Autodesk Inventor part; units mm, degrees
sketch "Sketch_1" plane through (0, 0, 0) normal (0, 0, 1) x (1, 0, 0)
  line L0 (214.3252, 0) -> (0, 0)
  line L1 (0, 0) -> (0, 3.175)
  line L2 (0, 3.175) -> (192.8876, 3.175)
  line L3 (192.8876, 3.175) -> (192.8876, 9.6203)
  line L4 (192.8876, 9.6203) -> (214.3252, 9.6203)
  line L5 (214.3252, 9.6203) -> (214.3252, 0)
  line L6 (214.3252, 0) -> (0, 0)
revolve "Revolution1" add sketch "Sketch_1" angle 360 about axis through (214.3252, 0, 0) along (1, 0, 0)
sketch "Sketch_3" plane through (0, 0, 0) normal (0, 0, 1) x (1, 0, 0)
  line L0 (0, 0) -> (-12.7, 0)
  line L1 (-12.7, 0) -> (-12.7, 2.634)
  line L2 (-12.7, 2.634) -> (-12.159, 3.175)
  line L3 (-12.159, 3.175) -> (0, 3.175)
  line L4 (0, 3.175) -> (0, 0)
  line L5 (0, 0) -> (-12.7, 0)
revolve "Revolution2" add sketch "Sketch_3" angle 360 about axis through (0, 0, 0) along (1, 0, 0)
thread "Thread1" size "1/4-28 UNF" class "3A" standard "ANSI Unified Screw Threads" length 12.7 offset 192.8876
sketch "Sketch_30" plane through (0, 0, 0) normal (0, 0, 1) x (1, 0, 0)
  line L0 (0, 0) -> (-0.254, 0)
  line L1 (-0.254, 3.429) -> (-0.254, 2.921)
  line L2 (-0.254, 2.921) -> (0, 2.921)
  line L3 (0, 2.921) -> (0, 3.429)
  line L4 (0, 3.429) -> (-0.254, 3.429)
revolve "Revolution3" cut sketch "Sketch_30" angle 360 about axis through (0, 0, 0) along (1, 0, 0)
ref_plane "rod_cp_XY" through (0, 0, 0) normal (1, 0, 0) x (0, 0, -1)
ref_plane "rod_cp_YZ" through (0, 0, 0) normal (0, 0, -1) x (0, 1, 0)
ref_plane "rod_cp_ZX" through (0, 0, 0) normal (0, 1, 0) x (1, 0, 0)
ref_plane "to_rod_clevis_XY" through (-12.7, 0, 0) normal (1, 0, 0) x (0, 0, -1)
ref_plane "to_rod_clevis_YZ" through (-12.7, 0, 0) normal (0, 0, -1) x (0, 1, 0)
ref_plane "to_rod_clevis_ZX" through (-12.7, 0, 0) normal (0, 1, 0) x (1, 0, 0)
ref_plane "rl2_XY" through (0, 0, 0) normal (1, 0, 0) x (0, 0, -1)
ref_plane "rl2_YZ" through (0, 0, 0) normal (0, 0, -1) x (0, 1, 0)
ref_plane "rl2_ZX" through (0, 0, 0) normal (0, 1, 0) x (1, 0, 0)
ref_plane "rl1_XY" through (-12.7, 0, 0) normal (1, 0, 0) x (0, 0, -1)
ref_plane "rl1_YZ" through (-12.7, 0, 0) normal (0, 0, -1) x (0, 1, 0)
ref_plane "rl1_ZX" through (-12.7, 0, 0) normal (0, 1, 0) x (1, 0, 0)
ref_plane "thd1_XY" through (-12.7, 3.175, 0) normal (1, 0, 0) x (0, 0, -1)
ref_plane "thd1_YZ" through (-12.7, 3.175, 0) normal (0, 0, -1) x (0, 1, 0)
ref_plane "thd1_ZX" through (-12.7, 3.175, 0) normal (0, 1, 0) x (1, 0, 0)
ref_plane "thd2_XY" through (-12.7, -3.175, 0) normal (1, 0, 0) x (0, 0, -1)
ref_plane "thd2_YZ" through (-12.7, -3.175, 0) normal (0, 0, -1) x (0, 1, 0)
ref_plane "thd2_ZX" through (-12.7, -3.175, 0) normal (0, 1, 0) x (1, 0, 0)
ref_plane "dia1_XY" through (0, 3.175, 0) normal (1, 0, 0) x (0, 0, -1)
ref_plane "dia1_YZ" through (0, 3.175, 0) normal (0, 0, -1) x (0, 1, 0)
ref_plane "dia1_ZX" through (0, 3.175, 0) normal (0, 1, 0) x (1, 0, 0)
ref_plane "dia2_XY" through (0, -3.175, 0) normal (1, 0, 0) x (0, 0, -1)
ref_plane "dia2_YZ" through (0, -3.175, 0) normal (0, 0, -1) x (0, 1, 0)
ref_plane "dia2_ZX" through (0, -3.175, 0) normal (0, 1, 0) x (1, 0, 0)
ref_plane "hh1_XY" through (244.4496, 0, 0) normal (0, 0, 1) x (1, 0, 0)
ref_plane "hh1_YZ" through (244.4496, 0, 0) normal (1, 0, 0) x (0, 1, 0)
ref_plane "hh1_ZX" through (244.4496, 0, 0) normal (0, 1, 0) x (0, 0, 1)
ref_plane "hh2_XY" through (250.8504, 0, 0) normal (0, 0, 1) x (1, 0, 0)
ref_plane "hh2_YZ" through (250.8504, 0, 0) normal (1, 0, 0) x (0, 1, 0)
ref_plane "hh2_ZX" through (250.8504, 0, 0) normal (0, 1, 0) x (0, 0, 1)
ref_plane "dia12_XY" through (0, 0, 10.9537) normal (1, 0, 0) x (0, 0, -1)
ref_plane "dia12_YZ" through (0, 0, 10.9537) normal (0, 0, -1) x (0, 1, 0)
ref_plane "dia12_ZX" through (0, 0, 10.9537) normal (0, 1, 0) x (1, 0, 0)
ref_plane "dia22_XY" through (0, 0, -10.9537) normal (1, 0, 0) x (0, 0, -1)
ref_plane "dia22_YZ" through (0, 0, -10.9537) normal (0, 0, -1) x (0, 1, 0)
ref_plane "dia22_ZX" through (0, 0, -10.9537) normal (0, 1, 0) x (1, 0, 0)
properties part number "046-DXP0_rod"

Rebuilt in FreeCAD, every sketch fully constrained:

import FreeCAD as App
import Part
import Sketcher

V = App.Vector
Q = App.Units.Quantity

doc = App.newDocument("Part")
body = doc.addObject("PartDesign::Body", "Body")

# Sketch on XY plane
sketch1 = doc.addObject("Sketcher::SketchObject", "Sketch")
body.addObject(sketch1)
sketch1.AttachmentSupport = (doc.XY_Plane, [""])
sketch1.MapMode = "FlatFace"
sketch1.addGeometry([
    Part.LineSegment(V(0, 0, 0), V(214.3, 0, 0)),  # 0
    Part.LineSegment(V(214.3, 0, 0), V(214.3, 9.6, 0)),  # 1
    Part.LineSegment(V(214.3, 9.6, 0), V(192.9, 9.6, 0)),  # 2
    Part.LineSegment(V(192.9, 9.6, 0), V(192.9, 3.2, 0)),  # 3
    Part.LineSegment(V(192.9, 3.2, 0), V(0, 3.2, 0)),  # 4
    Part.LineSegment(V(0, 3.2, 0), V(0, 0, 0)),  # 5
], False)
sketch1.addConstraint([
    Sketcher.Constraint("Coincident", 0, 2, 1, 1),
    Sketcher.Constraint("Coincident", 1, 2, 2, 1),
    Sketcher.Constraint("Coincident", 2, 2, 3, 1),
    Sketcher.Constraint("Coincident", 3, 2, 4, 1),
    Sketcher.Constraint("Coincident", 4, 2, 5, 1),
    Sketcher.Constraint("Coincident", 5, 2, 0, 1),
    Sketcher.Constraint("Horizontal", 0),
    Sketcher.Constraint("Vertical", 1),
    Sketcher.Constraint("Horizontal", 2),
    Sketcher.Constraint("Vertical", 3),
    Sketcher.Constraint("Horizontal", 4),
    Sketcher.Constraint("Vertical", 5),
    Sketcher.Constraint("Coincident", 5, 2, -1, 1),
    Sketcher.Constraint("DistanceX", 0, 1, 0, 2, Q("8.438 in")),
    Sketcher.Constraint("DistanceX", 2, 2, 2, 1, Q("0.844 in")),
    Sketcher.Constraint("DistanceY", 5, 2, 5, 1, Q("0.125 in")),
    Sketcher.Constraint("DistanceY", 1, 1, 1, 2, 9.6203),
])
revolution = doc.addObject("PartDesign::Revolution", "Revolution")
body.addObject(revolution)
revolution.Profile = sketch1
revolution.ReferenceAxis = (sketch1, ["H_Axis"])
revolution.Angle = 360

# Sketch on XY plane
sketch2 = doc.addObject("Sketcher::SketchObject", "Sketch001")
body.addObject(sketch2)
sketch2.AttachmentSupport = (doc.XY_Plane, [""])
sketch2.MapMode = "FlatFace"
sketch2.addGeometry([
    Part.LineSegment(V(-12.7, 0, 0), V(0, 0, 0)),  # 0
    Part.LineSegment(V(0, 0, 0), V(0, 3.2, 0)),  # 1
    Part.LineSegment(V(0, 3.2, 0), V(-12.2, 3.2, 0)),  # 2
    Part.LineSegment(V(-12.2, 3.2, 0), V(-12.7, 2.6, 0)),  # 3
    Part.LineSegment(V(-12.7, 2.6, 0), V(-12.7, 0, 0)),  # 4
], False)
sketch2.addConstraint([
    Sketcher.Constraint("Coincident", 0, 2, 1, 1),
    Sketcher.Constraint("Coincident", 1, 2, 2, 1),
    Sketcher.Constraint("Coincident", 2, 2, 3, 1),
    Sketcher.Constraint("Coincident", 3, 2, 4, 1),
    Sketcher.Constraint("Coincident", 4, 2, 0, 1),
    Sketcher.Constraint("Horizontal", 0),
    Sketcher.Constraint("Vertical", 1),
    Sketcher.Constraint("Horizontal", 2),
    Sketcher.Constraint("Vertical", 4),
    Sketcher.Constraint("Coincident", 0, 2, -1, 1),
    Sketcher.Constraint("DistanceX", 0, 1, 0, 2, Q("0.5 in")),
    Sketcher.Constraint("Angle", 3, Q("-135 deg")),
    Sketcher.Constraint("DistanceY", 1, 1, 1, 2, Q("0.125 in")),
    Sketcher.Constraint("DistanceX", 2, 2, 2, 1, Q("0.4787 in")),
])
revolution2 = doc.addObject("PartDesign::Revolution", "Revolution001")
body.addObject(revolution2)
revolution2.Profile = sketch2
revolution2.ReferenceAxis = (sketch2, ["H_Axis"])
revolution2.Angle = 360

# Sketch on XY plane
sketch3 = doc.addObject("Sketcher::SketchObject", "Sketch002")
body.addObject(sketch3)
sketch3.AttachmentSupport = (doc.XY_Plane, [""])
sketch3.MapMode = "FlatFace"
sketch3.addGeometry([
    Part.LineSegment(V(0, 3.43, 0), V(-0.25, 3.43, 0)),
    Part.LineSegment(V(-0.25, 3.43, 0), V(-0.25, 2.92, 0)),
    Part.LineSegment(V(-0.25, 2.92, 0), V(0, 2.92, 0)),
    Part.LineSegment(V(0, 2.92, 0), V(0, 3.43, 0)),
], False)
sketch3.addConstraint([
    Sketcher.Constraint("Coincident", 0, 2, 1, 1),
    Sketcher.Constraint("Coincident", 1, 2, 2, 1),
    Sketcher.Constraint("Coincident", 2, 2, 3, 1),
    Sketcher.Constraint("Coincident", 3, 2, 0, 1),
    Sketcher.Constraint("Horizontal", 0),
    Sketcher.Constraint("Vertical", 1),
    Sketcher.Constraint("Horizontal", 2),
    Sketcher.Constraint("Vertical", 3),
    Sketcher.Constraint("PointOnObject", 2, 2, -2),
    Sketcher.Constraint("DistanceX", 0, 2, 0, 1, Q("0.01 in")),
    Sketcher.Constraint("DistanceY", 1, 2, 1, 1, Q("0.02 in")),
    Sketcher.Constraint("DistanceY", -1, 1, 0, 2, Q("0.135 in")),
])
groove = doc.addObject("PartDesign::Groove", "Groove")
body.addObject(groove)
groove.Profile = sketch3
groove.ReferenceAxis = (sketch3, ["H_Axis"])
groove.Angle = 360

doc.recompute()
